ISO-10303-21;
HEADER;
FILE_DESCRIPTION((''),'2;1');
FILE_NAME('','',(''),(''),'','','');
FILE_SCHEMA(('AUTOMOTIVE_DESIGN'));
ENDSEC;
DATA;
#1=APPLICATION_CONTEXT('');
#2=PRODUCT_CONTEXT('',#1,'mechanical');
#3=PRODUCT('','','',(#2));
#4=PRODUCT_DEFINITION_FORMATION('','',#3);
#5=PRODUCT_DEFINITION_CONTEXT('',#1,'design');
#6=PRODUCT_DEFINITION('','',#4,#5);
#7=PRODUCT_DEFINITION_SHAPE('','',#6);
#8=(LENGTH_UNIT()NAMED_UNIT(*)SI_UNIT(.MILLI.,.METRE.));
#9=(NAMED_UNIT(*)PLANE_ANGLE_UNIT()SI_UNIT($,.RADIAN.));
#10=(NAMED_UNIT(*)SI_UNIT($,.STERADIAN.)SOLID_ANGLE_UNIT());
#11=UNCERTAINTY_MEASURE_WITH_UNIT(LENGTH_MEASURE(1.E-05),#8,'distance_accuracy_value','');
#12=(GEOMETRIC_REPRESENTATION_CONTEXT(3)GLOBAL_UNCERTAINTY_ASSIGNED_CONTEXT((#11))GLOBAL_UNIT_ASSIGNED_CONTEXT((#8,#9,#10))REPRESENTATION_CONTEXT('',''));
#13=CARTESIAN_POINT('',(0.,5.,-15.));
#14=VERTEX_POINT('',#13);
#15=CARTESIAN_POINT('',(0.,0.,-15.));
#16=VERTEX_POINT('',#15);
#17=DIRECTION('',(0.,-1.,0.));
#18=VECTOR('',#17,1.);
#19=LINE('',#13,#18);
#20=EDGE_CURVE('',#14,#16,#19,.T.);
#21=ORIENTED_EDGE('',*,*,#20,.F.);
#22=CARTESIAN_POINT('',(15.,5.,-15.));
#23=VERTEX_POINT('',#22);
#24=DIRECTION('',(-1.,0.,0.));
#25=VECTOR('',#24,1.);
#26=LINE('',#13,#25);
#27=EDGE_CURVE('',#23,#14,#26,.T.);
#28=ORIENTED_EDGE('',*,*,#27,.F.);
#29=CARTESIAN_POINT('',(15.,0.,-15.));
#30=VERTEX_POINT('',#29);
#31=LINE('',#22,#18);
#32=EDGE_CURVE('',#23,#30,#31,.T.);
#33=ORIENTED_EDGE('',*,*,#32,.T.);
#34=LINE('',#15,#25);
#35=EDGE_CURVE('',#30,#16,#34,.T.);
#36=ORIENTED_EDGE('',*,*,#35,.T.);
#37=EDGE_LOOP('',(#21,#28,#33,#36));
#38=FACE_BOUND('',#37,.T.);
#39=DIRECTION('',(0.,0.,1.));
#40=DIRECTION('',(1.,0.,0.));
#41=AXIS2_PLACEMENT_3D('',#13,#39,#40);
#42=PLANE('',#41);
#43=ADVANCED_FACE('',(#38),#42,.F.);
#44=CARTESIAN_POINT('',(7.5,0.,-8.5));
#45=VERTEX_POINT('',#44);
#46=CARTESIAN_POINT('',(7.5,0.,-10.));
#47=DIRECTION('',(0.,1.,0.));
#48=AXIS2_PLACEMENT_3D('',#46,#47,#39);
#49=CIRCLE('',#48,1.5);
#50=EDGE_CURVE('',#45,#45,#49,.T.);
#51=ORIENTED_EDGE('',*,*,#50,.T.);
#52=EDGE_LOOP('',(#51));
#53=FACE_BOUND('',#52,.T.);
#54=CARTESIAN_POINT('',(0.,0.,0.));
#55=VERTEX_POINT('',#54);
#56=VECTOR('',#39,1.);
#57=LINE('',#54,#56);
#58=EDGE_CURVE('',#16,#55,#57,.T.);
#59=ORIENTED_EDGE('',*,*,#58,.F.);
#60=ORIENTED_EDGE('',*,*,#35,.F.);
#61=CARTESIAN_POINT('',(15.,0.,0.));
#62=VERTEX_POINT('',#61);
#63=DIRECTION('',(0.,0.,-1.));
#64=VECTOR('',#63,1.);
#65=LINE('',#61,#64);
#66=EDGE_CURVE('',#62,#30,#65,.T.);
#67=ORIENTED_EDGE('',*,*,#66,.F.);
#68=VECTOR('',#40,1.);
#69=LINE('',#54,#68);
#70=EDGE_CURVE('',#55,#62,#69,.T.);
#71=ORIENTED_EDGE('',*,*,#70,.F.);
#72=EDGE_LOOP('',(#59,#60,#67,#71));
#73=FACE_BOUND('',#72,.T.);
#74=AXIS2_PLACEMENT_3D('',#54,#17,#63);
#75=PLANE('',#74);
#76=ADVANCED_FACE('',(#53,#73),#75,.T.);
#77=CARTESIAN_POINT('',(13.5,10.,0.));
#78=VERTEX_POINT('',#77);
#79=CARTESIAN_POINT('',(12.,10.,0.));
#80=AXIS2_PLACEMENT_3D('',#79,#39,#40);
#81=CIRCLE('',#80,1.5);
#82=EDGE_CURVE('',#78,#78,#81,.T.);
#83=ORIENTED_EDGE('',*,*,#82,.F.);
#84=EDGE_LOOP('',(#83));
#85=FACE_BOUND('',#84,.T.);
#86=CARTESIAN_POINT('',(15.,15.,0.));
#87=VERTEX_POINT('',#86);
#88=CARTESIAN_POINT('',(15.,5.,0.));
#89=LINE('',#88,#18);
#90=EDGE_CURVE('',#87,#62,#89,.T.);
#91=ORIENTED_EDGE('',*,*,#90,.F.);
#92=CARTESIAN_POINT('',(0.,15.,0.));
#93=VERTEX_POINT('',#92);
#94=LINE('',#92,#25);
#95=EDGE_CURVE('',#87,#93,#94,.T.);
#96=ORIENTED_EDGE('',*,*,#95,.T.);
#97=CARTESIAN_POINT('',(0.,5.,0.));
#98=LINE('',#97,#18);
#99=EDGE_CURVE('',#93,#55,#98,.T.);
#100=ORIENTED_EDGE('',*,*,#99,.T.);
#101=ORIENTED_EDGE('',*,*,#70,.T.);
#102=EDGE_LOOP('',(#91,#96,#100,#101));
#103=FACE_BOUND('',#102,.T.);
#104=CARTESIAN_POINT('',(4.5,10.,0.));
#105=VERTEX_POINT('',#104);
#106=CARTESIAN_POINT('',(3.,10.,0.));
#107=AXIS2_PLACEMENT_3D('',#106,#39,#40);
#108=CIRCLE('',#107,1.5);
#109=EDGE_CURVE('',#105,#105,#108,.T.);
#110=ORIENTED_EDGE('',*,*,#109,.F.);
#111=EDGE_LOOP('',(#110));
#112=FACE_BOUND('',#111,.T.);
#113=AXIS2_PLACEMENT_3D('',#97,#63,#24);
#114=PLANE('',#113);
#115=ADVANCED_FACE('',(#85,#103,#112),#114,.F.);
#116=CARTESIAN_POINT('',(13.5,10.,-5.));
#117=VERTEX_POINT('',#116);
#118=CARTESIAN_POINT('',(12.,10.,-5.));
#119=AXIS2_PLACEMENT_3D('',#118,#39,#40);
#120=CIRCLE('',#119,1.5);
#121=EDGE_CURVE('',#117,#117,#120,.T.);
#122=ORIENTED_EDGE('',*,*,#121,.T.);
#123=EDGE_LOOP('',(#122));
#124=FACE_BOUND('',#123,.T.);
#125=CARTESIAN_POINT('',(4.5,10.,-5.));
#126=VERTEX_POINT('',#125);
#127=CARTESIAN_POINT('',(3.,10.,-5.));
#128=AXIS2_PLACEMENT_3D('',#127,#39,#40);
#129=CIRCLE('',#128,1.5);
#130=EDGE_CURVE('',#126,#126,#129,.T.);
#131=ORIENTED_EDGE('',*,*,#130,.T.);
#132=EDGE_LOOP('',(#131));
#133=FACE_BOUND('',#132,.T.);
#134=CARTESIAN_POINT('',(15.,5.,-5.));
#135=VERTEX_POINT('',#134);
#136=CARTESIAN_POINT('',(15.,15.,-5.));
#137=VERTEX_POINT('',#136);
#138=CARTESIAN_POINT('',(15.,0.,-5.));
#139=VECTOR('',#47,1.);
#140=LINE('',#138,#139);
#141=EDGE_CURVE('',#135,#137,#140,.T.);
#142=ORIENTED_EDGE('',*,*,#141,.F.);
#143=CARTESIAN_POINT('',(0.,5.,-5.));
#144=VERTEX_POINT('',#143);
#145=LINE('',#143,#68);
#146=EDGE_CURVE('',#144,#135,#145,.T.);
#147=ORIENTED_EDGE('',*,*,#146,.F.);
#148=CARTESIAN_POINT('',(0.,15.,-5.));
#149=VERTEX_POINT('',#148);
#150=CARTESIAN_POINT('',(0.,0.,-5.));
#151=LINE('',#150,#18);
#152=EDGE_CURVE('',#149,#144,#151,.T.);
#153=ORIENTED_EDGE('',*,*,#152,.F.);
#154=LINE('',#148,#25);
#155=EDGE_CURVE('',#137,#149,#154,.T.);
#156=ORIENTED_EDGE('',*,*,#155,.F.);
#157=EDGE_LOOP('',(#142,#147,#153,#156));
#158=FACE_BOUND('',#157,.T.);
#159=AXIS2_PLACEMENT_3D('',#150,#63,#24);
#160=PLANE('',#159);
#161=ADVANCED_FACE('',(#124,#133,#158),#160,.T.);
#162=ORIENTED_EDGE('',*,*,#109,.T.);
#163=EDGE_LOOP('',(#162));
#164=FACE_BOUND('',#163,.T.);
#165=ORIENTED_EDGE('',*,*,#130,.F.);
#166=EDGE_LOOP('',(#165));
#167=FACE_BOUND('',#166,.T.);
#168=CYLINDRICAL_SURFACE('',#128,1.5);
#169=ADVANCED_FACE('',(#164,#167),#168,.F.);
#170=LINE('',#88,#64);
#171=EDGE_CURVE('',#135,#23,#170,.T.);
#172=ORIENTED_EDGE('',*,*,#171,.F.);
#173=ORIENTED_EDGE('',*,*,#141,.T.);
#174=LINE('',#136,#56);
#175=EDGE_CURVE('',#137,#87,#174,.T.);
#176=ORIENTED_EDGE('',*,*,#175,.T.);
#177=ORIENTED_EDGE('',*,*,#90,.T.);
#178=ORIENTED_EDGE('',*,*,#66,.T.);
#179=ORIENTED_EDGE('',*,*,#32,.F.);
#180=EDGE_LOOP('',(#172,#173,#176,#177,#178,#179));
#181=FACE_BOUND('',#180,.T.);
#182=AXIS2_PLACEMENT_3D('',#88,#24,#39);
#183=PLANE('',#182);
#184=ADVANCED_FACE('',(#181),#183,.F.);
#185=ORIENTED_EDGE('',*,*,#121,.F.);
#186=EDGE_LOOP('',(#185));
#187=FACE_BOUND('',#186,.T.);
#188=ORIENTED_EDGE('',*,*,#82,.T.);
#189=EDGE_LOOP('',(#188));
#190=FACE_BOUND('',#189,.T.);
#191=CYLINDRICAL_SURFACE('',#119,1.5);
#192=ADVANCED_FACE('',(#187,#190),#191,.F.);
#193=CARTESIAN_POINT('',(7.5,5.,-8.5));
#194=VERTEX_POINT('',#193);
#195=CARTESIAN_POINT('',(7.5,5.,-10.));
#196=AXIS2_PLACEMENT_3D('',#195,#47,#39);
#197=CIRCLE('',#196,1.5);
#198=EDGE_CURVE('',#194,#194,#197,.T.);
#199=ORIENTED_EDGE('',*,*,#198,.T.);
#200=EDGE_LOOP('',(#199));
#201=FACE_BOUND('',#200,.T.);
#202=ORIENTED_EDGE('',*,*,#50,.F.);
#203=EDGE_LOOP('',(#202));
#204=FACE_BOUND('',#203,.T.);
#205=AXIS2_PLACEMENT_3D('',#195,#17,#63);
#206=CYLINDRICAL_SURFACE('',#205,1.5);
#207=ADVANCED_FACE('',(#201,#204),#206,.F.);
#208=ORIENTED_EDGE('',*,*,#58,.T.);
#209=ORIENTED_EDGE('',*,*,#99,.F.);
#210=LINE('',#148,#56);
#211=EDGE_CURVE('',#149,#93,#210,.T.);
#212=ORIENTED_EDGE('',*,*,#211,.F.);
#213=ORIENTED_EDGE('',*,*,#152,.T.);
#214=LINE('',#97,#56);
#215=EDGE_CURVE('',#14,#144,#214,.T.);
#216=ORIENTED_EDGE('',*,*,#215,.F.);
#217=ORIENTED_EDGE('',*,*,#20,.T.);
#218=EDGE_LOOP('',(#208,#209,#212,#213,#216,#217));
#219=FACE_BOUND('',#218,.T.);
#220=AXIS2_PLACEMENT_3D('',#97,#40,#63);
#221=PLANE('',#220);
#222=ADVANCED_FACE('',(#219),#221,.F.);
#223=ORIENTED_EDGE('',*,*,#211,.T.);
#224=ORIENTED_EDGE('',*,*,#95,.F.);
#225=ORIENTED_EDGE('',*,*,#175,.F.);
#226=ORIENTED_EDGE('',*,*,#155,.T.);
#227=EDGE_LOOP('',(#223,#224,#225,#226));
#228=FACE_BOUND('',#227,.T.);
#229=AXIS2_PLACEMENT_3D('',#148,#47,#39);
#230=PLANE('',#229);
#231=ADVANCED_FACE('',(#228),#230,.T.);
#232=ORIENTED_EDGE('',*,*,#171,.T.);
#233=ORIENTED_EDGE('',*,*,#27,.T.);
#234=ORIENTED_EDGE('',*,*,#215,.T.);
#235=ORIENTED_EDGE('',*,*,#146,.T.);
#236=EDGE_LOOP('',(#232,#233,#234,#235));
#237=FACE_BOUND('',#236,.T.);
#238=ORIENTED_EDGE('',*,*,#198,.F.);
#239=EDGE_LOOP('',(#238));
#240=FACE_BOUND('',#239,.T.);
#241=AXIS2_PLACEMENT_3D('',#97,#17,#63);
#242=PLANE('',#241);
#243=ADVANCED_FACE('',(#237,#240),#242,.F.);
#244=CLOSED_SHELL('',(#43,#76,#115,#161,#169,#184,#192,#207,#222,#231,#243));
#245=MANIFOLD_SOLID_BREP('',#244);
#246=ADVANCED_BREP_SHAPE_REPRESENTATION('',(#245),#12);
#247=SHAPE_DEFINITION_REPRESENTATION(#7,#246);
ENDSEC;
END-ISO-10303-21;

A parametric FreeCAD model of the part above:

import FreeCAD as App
import Part
import Sketcher
from FreeCAD import Vector


def add_polygon(sketch, points):
    """Adds a closed chain of lines whose ends are joined by coincident constraints."""
    first, n = sketch.GeometryCount, len(points)
    for a, b in zip(points, points[1:] + points[:1]):
        sketch.addGeometry(Part.LineSegment(App.Vector(*a, 0), App.Vector(*b, 0)), False)
    for i in range(n):
        sketch.addConstraint(Sketcher.Constraint("Coincident", first + i, 2, first + (i + 1) % n, 1))

doc = App.newDocument("Part")
body = doc.addObject("PartDesign::Body", "Body")

# Sketch on XZ plane
sketch1 = body.newObject("Sketcher::SketchObject", "Sketch")
sketch1.AttachmentSupport = (doc.getObject("XZ_Plane"), [""])
sketch1.MapMode = "FlatFace"
add_polygon(sketch1, [(0, -15), (0, 0), (15, 0), (15, -15)])  # lines 0-3
sketch1.addGeometry(Part.Circle(Vector(7.5, -10, 0), Vector(0, 0, 1), 1.5), False)  # 4
sketch1.addConstraint([
    Sketcher.Constraint("Vertical", 0),
    Sketcher.Constraint("Horizontal", 1),
    Sketcher.Constraint("Vertical", 2),
    Sketcher.Constraint("Horizontal", 3),
    Sketcher.Constraint("Coincident", 0, 2, -1, 1),
    Sketcher.Constraint("Equal", 3, 0),
    Sketcher.Constraint("Diameter", 4, 3.0),
    Sketcher.Constraint("DistanceX", 1, 1, 1, 2, 15.0),
    Sketcher.Constraint("DistanceY", 4, 3, -1, 1, 10.0),
    Sketcher.Constraint("DistanceX", -1, 1, 4, 3, 7.5),
])
pad1 = body.newObject("PartDesign::Pad", "Pad")
pad1.Profile = sketch1
pad1.Length = 5
pad1.Reversed = True

# Sketch on XY plane
sketch2 = body.newObject("Sketcher::SketchObject", "Sketch001")
sketch2.AttachmentSupport = (doc.getObject("XY_Plane"), [""])
sketch2.MapMode = "FlatFace"
add_polygon(sketch2, [(0, 15), (0, 0), (15, 0), (15, 15)])  # lines 0-3
sketch2.addGeometry(Part.Circle(Vector(3, 10, 0), Vector(0, 0, 1), 1.5), False)  # 4
sketch2.addGeometry(Part.Circle(Vector(12, 10, 0), Vector(0, 0, 1), 1.5), False)  # 5
sketch2.addConstraint([
    Sketcher.Constraint("Vertical", 0),
    Sketcher.Constraint("Horizontal", 1),
    Sketcher.Constraint("Vertical", 2),
    Sketcher.Constraint("Horizontal", 3),
    Sketcher.Constraint("Coincident", 0, 2, -1, 1),
    Sketcher.Constraint("Equal", 4, 5),
    Sketcher.Constraint("Horizontal", 4, 3, 5, 3),
    Sketcher.Constraint("Equal", 3, 0),
    Sketcher.Constraint("Diameter", 4, 3.0),
    Sketcher.Constraint("DistanceX", 1, 1, 1, 2, 15.0),
    Sketcher.Constraint("DistanceX", -1, 1, 4, 3, 3.0),
    Sketcher.Constraint("DistanceY", -1, 1, 4, 3, 10.0),
    Sketcher.Constraint("DistanceX", -1, 1, 5, 3, 12.0),
])
pad2 = body.newObject("PartDesign::Pad", "Pad001")
pad2.Profile = sketch2
pad2.Length = 5
pad2.Reversed = True

doc.recompute()
